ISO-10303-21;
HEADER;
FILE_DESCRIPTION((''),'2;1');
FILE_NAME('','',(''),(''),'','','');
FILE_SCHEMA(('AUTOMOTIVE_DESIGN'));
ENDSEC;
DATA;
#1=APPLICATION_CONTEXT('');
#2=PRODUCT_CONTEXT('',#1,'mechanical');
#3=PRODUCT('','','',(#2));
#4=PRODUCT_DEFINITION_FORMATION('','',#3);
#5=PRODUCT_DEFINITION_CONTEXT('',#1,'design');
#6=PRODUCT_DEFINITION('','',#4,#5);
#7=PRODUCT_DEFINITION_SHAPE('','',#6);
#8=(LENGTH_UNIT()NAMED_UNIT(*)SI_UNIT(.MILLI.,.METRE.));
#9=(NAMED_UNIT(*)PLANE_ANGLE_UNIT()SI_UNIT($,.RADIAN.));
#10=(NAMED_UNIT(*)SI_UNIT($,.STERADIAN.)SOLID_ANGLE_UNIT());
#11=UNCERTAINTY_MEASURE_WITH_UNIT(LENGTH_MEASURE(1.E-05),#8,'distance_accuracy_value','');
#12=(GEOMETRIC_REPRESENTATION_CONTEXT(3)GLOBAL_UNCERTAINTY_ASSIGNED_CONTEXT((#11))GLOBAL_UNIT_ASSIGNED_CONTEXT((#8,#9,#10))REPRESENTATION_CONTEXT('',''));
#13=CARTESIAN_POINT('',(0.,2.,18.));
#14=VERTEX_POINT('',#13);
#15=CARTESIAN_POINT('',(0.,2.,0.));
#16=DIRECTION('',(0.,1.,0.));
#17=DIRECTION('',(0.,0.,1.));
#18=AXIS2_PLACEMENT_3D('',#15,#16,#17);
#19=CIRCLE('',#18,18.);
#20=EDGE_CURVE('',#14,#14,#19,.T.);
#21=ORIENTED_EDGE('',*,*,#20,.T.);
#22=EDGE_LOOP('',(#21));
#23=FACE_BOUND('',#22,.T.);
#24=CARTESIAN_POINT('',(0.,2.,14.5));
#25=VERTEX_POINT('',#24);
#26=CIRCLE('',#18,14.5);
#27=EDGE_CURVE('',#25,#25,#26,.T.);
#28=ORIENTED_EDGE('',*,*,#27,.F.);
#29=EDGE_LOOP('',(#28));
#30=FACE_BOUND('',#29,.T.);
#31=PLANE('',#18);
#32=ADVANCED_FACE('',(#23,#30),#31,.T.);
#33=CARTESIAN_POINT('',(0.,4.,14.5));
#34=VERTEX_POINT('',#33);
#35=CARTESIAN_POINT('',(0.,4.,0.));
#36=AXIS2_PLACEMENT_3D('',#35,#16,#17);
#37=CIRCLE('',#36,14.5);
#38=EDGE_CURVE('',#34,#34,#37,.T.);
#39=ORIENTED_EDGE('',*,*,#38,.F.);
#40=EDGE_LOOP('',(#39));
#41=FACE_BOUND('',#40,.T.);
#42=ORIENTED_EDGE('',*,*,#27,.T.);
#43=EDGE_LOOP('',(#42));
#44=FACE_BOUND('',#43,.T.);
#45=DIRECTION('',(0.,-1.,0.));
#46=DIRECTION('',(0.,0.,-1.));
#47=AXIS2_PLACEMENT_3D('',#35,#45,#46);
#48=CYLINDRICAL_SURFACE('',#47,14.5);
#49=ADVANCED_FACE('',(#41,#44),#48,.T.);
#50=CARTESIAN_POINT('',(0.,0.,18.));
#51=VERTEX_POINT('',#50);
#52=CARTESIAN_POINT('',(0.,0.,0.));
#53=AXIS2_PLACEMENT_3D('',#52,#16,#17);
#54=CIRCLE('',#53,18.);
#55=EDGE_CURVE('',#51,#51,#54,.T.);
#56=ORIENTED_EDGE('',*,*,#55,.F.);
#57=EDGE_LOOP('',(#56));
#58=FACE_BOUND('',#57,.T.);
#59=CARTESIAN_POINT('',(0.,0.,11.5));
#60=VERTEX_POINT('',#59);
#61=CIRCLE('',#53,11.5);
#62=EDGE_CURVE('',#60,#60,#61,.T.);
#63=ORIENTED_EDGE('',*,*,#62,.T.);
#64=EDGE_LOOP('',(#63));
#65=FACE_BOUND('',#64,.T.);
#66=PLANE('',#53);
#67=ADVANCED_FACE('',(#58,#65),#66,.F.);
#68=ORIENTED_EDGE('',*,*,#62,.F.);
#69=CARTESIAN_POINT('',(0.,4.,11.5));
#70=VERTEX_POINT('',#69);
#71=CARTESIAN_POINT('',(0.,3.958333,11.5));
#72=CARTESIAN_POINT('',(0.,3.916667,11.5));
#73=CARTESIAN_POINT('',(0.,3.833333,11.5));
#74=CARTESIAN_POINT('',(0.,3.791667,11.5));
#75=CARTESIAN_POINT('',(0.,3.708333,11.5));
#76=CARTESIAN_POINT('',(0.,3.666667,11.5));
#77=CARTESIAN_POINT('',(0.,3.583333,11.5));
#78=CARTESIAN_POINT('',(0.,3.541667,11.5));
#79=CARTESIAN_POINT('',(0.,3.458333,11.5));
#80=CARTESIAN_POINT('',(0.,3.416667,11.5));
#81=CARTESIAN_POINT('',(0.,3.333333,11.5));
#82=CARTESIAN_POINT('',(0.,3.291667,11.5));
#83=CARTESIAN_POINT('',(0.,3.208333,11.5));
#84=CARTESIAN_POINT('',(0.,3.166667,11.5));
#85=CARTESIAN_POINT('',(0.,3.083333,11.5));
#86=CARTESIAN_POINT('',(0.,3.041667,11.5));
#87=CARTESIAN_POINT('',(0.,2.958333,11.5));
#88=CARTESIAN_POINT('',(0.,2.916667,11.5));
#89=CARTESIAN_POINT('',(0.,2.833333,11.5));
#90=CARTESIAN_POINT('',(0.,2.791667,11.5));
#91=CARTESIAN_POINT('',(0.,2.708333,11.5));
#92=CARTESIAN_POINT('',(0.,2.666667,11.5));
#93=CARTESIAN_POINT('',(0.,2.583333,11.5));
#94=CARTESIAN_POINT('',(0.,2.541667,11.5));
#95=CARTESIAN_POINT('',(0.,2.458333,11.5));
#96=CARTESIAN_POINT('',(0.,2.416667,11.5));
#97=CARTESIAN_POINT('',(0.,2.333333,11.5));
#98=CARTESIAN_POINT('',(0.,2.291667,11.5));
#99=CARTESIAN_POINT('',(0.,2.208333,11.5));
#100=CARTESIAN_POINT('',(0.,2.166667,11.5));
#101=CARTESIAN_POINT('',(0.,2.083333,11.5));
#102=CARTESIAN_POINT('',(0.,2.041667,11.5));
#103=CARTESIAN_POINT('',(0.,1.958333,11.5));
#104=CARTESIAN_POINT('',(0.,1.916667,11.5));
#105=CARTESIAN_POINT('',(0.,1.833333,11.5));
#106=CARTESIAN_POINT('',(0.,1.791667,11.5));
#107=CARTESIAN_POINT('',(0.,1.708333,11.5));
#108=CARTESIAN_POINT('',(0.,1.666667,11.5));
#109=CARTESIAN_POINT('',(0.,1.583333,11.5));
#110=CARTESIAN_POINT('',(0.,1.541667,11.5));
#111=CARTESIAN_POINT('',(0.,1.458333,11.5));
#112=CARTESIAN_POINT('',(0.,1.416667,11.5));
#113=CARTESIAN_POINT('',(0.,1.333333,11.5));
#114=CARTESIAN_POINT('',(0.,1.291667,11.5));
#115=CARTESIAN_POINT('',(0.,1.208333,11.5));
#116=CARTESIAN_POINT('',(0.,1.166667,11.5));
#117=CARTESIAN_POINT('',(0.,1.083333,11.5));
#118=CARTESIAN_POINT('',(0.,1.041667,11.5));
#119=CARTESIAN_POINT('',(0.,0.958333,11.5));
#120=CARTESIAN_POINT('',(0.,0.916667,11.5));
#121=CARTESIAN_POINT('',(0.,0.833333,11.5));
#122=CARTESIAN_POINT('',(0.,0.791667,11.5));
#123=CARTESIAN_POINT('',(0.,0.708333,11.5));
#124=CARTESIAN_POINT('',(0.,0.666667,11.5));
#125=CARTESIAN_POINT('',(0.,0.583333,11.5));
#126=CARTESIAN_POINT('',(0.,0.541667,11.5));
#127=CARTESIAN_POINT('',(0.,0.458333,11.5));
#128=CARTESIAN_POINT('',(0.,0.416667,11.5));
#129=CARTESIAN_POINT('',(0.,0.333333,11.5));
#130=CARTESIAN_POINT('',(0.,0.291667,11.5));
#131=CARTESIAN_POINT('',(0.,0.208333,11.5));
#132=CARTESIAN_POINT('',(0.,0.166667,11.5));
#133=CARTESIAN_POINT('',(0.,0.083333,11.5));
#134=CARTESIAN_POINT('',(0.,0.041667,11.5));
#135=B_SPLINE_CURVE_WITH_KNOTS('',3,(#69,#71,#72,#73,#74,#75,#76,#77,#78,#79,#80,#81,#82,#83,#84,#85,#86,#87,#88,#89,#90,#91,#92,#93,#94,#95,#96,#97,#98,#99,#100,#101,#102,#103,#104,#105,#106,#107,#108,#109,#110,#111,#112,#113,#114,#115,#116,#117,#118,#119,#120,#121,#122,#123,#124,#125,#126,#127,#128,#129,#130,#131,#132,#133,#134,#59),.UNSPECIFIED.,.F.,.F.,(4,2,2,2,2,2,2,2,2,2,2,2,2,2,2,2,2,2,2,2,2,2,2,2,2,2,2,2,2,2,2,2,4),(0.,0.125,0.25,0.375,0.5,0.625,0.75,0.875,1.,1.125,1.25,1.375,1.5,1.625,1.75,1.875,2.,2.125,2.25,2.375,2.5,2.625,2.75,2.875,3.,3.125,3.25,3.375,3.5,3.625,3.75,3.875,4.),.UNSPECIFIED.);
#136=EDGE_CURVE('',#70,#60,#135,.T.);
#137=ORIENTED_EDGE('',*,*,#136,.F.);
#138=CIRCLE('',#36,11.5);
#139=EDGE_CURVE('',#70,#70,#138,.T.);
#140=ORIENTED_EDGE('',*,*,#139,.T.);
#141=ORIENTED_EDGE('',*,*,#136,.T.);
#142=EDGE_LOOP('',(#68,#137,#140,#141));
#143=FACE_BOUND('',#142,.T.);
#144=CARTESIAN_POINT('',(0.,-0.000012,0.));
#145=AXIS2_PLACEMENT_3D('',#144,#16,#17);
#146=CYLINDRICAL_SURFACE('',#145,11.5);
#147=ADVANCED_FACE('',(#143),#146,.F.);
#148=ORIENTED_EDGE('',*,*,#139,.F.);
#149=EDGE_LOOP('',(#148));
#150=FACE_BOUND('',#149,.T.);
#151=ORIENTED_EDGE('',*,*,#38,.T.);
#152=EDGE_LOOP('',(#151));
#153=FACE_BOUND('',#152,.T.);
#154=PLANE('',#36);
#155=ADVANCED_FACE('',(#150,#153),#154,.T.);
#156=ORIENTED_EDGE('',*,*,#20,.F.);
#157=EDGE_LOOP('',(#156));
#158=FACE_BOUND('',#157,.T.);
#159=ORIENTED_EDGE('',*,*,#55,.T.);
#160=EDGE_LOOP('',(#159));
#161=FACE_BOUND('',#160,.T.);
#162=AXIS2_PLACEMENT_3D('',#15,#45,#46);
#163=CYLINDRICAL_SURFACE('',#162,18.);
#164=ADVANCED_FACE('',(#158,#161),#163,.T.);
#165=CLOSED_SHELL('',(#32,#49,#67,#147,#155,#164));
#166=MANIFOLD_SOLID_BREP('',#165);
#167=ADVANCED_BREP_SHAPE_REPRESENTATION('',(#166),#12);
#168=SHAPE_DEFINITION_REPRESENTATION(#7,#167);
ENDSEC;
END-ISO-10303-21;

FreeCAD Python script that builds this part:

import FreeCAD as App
import Part
import Sketcher

doc = App.newDocument("Part")
body = doc.addObject("PartDesign::Body", "Body")

sketch1 = body.newObject("Sketcher::SketchObject", "Sketch")
sketch1.AttachmentSupport = (doc.getObject("XZ_Plane"), [""])
sketch1.MapMode = "FlatFace"
sketch1.addGeometry(Part.Circle(App.Vector(0, 0, 0), App.Vector(0, 0, 1), 18), False)
sketch1.addConstraint(Sketcher.Constraint("Coincident", 0, 3, -1, 1))
sketch1.addConstraint(Sketcher.Constraint("Diameter", 0, 36.0))
pad1 = body.newObject("PartDesign::Pad", "Pad")
pad1.Profile = sketch1
pad1.Length = 2
pad1.Reversed = True

sketch2 = body.newObject("Sketcher::SketchObject", "Sketch001")
sketch2.AttachmentSupport = (doc.getObject("XZ_Plane"), [""])
sketch2.MapMode = "FlatFace"
sketch2.AttachmentOffset = App.Placement(App.Vector(0, 0, -2), App.Rotation())
sketch2.addGeometry(Part.Circle(App.Vector(0, 0, 0), App.Vector(0, 0, 1), 14), False)
sketch2.addConstraint(Sketcher.Constraint("Coincident", 0, 3, -1, 1))
sketch2.addConstraint(Sketcher.Constraint("Diameter", 0, 29.0))
pad2 = body.newObject("PartDesign::Pad", "Pad001")
pad2.Profile = sketch2
pad2.Length = 2
pad2.Reversed = True

sketch3 = body.newObject("Sketcher::SketchObject", "Sketch002")
sketch3.AttachmentSupport = (doc.getObject("XZ_Plane"), [""])
sketch3.MapMode = "FlatFace"
sketch3.addGeometry(Part.Circle(App.Vector(0, 0, 0), App.Vector(0, 0, 1), 12), False)
sketch3.addConstraint(Sketcher.Constraint("Coincident", 0, 3, -1, 1))
sketch3.addConstraint(Sketcher.Constraint("Diameter", 0, 23.0))
pocket1 = body.newObject("PartDesign::Pocket", "Pocket")
pocket1.Profile = sketch3
pocket1.Type = "ThroughAll"
pocket1.Midplane = True

doc.recompute()
